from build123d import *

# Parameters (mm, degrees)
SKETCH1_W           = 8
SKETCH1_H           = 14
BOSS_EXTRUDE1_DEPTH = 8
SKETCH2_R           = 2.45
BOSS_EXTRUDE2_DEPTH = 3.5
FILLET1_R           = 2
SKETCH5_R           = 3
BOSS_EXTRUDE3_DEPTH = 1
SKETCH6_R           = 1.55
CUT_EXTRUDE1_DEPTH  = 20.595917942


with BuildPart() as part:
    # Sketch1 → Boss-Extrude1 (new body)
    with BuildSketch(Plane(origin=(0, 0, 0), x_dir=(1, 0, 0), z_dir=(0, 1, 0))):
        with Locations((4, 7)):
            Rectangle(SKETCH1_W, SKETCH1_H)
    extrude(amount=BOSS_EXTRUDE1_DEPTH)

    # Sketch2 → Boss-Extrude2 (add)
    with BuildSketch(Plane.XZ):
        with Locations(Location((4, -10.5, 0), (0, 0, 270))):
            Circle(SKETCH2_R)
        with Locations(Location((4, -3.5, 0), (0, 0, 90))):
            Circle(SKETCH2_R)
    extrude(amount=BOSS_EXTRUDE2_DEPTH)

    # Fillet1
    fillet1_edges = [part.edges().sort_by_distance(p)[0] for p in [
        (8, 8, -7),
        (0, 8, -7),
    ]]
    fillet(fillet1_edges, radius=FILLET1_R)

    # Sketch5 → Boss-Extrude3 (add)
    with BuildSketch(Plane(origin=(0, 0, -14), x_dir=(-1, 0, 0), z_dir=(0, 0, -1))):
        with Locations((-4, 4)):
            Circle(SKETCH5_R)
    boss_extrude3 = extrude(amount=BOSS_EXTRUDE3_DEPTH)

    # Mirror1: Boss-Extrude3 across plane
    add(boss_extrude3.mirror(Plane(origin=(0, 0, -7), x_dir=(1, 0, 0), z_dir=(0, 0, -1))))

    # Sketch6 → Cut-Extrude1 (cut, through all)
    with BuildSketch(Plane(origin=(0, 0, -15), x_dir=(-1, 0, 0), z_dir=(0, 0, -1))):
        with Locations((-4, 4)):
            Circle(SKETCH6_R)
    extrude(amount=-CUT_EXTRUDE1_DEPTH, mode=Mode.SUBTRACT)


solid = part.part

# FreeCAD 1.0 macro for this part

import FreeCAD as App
import Part
import Sketcher
Q = App.Units.Quantity


def edges_at(feature, points):
    """Names of the edges that pass closest to the given points."""
    edges = feature.Shape.Edges
    near = lambda p: min(range(len(edges)), key=lambda i: edges[i].distToShape(Part.Vertex(*p))[0])
    return sorted({f"Edge{near(p) + 1}" for p in points})

doc = App.newDocument("Part")
body = doc.addObject("PartDesign::Body", "Body")

# Sketch on XZ plane
sketch1 = body.newObject("Sketcher::SketchObject", "Sketch")
sketch1.AttachmentSupport = (doc.getObject("XZ_Plane"), [""])
sketch1.MapMode = "FlatFace"
sketch1.addGeometry(Part.LineSegment(App.Vector(0, -14, 0), App.Vector(0, 0, 0)), False)
sketch1.addGeometry(Part.LineSegment(App.Vector(0, 0, 0), App.Vector(8, 0, 0)), False)
sketch1.addGeometry(Part.LineSegment(App.Vector(8, 0, 0), App.Vector(8, -14, 0)), False)
sketch1.addGeometry(Part.LineSegment(App.Vector(8, -14, 0), App.Vector(0, -14, 0)), False)
sketch1.addConstraint(Sketcher.Constraint("Coincident", 0, 2, 1, 1))
sketch1.addConstraint(Sketcher.Constraint("Coincident", 1, 2, 2, 1))
sketch1.addConstraint(Sketcher.Constraint("Coincident", 2, 2, 3, 1))
sketch1.addConstraint(Sketcher.Constraint("Coincident", 3, 2, 0, 1))
sketch1.addConstraint(Sketcher.Constraint("Vertical", 0))
sketch1.addConstraint(Sketcher.Constraint("Horizontal", 1))
sketch1.addConstraint(Sketcher.Constraint("Vertical", 2))
sketch1.addConstraint(Sketcher.Constraint("Horizontal", 3))
sketch1.addConstraint(Sketcher.Constraint("Coincident", 0, 2, -1, 1))
sketch1.addConstraint(Sketcher.Constraint("DistanceX", 1, 1, 1, 2, Q("8 mm")))
sketch1.addConstraint(Sketcher.Constraint("DistanceY", 0, 1, 0, 2, Q("14 mm")))
pad1 = body.newObject("PartDesign::Pad", "Pad")
pad1.Profile = sketch1
pad1.Length = 8
pad1.Reversed = True

# Sketch on XZ plane
sketch2 = body.newObject("Sketcher::SketchObject", "Sketch001")
sketch2.AttachmentSupport = (doc.getObject("XZ_Plane"), [""])
sketch2.MapMode = "FlatFace"
sketch2.addGeometry(Part.Circle(App.Vector(4, -10.5, 0), App.Vector(0, 0, 1), 2.5), False)
sketch2.addGeometry(Part.Circle(App.Vector(4, -3.5, 0), App.Vector(0, 0, 1), 2.5), False)
sketch2.addConstraint(Sketcher.Constraint("Equal", 0, 1))
sketch2.addConstraint(Sketcher.Constraint("Vertical", 0, 3, 1, 3))
sketch2.addConstraint(Sketcher.Constraint("Diameter", 0, Q("4.9 mm")))
sketch2.addConstraint(Sketcher.Constraint("DistanceX", -1, 1, 0, 3, Q("4 mm")))
sketch2.addConstraint(Sketcher.Constraint("DistanceY", 0, 3, 1, 3, Q("7 mm")))
sketch2.addConstraint(Sketcher.Constraint("DistanceY", 0, 3, -1, 1, Q("10.5 mm")))
pad2 = body.newObject("PartDesign::Pad", "Pad001")
pad2.Profile = sketch2
pad2.Length = 3.5
doc.recompute()

fillet = body.newObject("PartDesign::Fillet", "Fillet")
fillet.Base = (pad2, edges_at(pad2, [(8, 8, -7), (0, 8, -7)]))
fillet.Radius = 2

# Sketch on XY plane
sketch3 = body.newObject("Sketcher::SketchObject", "Sketch002")
sketch3.AttachmentSupport = (doc.getObject("XY_Plane"), [""])
sketch3.MapMode = "FlatFace"
sketch3.AttachmentOffset = App.Placement(App.Vector(0, 0, -14), App.Rotation())
sketch3.addGeometry(Part.Circle(App.Vector(4, 4, 0), App.Vector(0, 0, 1), 3), False)
sketch3.addConstraint(Sketcher.Constraint("Diameter", 0, Q("6 mm")))
sketch3.addConstraint(Sketcher.Constraint("DistanceX", -1, 1, 0, 3, Q("4 mm")))
sketch3.addConstraint(Sketcher.Constraint("DistanceY", -1, 1, 0, 3, Q("4 mm")))
pad3 = body.newObject("PartDesign::Pad", "Pad002")
pad3.Profile = sketch3
pad3.Length = 1
pad3.Reversed = True
doc.recompute()

datumplane = body.newObject("PartDesign::Plane", "DatumPlane")
datumplane.AttachmentSupport = (doc.getObject("XY_Plane"), [""])
datumplane.MapMode = "FlatFace"
datumplane.AttachmentOffset = App.Placement(App.Vector(0, 0, -7), App.Rotation())
mirrored = body.newObject("PartDesign::Mirrored", "Mirrored")
mirrored.Originals = [pad3]
mirrored.MirrorPlane = (datumplane, [""])
body.Tip = mirrored

# Sketch on XY plane
sketch4 = body.newObject("Sketcher::SketchObject", "Sketch003")
sketch4.AttachmentSupport = (doc.getObject("XY_Plane"), [""])
sketch4.MapMode = "FlatFace"
sketch4.AttachmentOffset = App.Placement(App.Vector(0, 0, -15), App.Rotation())
sketch4.addGeometry(Part.Circle(App.Vector(4, 4, 0), App.Vector(0, 0, 1), 1.6), False)
sketch4.addConstraint(Sketcher.Constraint("Diameter", 0, Q("3.1 mm")))
sketch4.addConstraint(Sketcher.Constraint("DistanceX", -1, 1, 0, 3, Q("4 mm")))
sketch4.addConstraint(Sketcher.Constraint("DistanceY", -1, 1, 0, 3, Q("4 mm")))
pocket1 = body.newObject("PartDesign::Pocket", "Pocket")
pocket1.Profile = sketch4
pocket1.Type = "ThroughAll"
pocket1.Reversed = True

doc.recompute()
